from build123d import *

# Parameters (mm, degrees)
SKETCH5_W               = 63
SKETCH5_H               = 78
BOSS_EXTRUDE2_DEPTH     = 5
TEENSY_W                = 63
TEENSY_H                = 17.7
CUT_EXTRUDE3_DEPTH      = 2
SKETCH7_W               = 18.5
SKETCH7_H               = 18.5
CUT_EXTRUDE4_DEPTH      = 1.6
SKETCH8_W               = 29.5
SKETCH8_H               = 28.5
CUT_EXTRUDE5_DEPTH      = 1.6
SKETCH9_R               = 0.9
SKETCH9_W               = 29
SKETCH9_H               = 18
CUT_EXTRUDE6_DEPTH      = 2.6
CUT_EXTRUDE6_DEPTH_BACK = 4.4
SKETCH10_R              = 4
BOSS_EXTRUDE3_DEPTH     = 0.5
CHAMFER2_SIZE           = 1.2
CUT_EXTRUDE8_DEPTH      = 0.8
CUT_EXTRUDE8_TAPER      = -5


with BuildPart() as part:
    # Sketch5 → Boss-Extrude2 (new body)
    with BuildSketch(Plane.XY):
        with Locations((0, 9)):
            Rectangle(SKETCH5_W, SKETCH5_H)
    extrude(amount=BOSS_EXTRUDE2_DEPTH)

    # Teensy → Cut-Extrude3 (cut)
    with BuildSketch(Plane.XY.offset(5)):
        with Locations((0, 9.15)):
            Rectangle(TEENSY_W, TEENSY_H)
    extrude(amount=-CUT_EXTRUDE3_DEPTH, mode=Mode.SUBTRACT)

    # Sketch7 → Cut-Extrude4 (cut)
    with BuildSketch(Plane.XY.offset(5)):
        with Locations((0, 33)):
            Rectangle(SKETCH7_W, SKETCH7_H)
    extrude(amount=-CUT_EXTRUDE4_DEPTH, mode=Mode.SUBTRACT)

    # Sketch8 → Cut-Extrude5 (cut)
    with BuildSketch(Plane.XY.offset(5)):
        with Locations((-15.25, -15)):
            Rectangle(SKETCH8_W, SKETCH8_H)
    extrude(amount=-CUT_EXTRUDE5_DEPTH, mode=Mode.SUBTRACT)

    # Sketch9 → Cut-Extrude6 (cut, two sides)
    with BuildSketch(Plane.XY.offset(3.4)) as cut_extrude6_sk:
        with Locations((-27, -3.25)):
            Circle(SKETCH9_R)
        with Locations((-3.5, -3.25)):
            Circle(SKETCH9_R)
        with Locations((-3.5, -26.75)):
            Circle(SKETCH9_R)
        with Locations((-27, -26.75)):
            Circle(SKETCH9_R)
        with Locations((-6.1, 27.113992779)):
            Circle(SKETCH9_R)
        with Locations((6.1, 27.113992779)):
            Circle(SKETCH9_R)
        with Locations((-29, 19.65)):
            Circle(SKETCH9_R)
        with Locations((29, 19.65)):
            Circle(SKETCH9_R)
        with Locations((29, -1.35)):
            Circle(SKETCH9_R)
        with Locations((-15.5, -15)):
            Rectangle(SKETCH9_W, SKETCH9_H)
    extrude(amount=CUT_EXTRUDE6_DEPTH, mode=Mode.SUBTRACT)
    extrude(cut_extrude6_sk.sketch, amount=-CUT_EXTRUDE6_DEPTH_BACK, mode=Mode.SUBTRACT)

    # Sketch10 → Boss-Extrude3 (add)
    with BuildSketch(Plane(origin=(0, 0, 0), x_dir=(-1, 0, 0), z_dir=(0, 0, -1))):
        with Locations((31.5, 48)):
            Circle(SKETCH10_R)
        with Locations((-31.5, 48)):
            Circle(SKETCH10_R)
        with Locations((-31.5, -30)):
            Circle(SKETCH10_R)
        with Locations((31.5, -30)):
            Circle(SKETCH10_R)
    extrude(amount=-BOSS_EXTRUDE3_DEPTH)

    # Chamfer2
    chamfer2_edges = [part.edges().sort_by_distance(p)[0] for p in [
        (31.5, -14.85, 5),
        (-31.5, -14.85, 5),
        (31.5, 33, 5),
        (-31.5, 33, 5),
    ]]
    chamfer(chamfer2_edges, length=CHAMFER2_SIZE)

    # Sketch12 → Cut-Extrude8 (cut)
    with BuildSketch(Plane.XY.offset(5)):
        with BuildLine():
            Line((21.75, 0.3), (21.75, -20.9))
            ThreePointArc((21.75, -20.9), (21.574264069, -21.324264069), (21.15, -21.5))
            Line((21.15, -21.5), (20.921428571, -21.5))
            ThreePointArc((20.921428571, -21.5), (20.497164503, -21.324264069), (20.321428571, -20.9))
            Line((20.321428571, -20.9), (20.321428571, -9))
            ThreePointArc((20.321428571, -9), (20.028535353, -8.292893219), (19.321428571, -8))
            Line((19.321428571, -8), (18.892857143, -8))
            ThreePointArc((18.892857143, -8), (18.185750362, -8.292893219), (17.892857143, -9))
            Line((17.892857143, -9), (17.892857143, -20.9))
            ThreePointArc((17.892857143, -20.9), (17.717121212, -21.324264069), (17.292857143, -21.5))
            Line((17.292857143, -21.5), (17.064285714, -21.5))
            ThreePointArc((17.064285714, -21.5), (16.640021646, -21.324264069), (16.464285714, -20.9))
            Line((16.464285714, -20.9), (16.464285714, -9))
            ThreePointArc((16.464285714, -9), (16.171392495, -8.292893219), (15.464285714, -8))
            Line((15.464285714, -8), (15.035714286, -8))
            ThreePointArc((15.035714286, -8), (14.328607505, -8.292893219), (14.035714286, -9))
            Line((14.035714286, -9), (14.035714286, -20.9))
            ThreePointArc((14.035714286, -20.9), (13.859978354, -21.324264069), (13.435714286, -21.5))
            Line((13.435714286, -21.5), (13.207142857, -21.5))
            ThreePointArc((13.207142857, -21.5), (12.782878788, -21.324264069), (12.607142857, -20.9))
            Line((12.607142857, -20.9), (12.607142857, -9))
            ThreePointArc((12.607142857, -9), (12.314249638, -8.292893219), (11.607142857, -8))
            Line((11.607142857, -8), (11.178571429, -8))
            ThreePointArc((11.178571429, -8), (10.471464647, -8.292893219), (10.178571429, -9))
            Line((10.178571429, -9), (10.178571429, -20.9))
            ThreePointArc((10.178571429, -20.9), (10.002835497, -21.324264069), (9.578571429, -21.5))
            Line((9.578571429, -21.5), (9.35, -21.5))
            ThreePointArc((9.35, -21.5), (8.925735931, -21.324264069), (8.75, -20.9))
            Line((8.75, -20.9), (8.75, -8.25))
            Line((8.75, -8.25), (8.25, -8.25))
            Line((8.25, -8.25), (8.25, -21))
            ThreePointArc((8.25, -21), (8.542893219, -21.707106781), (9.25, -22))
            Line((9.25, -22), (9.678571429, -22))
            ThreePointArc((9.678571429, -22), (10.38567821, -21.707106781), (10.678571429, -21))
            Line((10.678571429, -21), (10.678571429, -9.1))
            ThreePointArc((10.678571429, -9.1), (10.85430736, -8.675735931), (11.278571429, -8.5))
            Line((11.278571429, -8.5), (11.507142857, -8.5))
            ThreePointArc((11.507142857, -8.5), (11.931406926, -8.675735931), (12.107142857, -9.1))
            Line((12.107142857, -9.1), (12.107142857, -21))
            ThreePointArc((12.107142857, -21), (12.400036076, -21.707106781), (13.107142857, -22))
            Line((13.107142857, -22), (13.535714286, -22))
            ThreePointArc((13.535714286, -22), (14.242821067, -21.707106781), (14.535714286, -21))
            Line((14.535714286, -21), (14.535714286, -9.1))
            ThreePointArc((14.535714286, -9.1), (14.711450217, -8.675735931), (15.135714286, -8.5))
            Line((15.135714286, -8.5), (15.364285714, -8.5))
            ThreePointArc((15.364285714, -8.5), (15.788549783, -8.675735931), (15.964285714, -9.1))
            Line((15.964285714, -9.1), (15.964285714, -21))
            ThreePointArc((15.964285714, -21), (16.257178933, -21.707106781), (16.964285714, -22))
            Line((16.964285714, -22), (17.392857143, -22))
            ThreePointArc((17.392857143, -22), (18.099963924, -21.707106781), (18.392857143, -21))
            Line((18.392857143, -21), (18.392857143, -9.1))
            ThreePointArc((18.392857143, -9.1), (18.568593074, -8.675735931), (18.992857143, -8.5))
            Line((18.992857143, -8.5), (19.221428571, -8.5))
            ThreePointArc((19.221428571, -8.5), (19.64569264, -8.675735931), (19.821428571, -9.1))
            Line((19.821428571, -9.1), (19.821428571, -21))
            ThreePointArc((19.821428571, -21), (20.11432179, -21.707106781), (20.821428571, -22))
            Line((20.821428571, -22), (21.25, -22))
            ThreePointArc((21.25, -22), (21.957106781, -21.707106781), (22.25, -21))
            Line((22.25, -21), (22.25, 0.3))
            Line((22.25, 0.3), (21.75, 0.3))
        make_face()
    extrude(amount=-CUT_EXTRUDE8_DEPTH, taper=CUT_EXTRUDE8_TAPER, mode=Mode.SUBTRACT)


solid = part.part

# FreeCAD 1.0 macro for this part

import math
import FreeCAD as App
import Part
import Sketcher
Q = App.Units.Quantity


def edges_at(feature, points):
    """Names of the edges that pass closest to the given points."""
    edges = feature.Shape.Edges
    near = lambda p: min(range(len(edges)), key=lambda i: edges[i].distToShape(Part.Vertex(*p))[0])
    return sorted({f"Edge{near(p) + 1}" for p in points})


def add_polygon(sketch, points):
    """Adds a closed chain of lines whose ends are joined by coincident constraints."""
    first, n = sketch.GeometryCount, len(points)
    for a, b in zip(points, points[1:] + points[:1]):
        sketch.addGeometry(Part.LineSegment(App.Vector(*a, 0), App.Vector(*b, 0)), False)
    for i in range(n):
        sketch.addConstraint(Sketcher.Constraint("Coincident", first + i, 2, first + (i + 1) % n, 1))

doc = App.newDocument("Part")
body = doc.addObject("PartDesign::Body", "Body")

# Sketch on XY plane
sketch1 = doc.addObject("Sketcher::SketchObject", "Sketch")
body.addObject(sketch1)
sketch1.AttachmentSupport = (doc.XY_Plane, [""])
sketch1.MapMode = "FlatFace"
add_polygon(sketch1, [(-32, 48), (-32, -30), (32, -30), (32, 48)])  # lines 0-3
sketch1.addConstraint([
    Sketcher.Constraint("Vertical", 0),
    Sketcher.Constraint("Horizontal", 1),
    Sketcher.Constraint("Vertical", 2),
    Sketcher.Constraint("Horizontal", 3),
    Sketcher.Constraint("DistanceX", 1, 1, 1, 2, Q("63 mm")),
    Sketcher.Constraint("DistanceY", 0, 2, 0, 1, Q("78 mm")),
    Sketcher.Constraint("DistanceY", 0, 2, -1, 1, Q("30 mm")),
    Sketcher.Constraint("DistanceX", 0, 2, -1, 1, Q("31.5 mm")),
])
pad1 = doc.addObject("PartDesign::Pad", "Pad")
body.addObject(pad1)
pad1.Profile = sketch1
pad1.Length = 5

# Sketch on XY plane
sketch2 = doc.addObject("Sketcher::SketchObject", "Sketch001")
body.addObject(sketch2)
sketch2.AttachmentSupport = (doc.XY_Plane, [""])
sketch2.MapMode = "FlatFace"
sketch2.AttachmentOffset = App.Placement(App.Vector(0, 0, 5), App.Rotation())
add_polygon(sketch2, [(-32, 18), (-32, 0), (32, 0), (32, 18)])  # lines 0-3
sketch2.addConstraint([
    Sketcher.Constraint("Vertical", 0),
    Sketcher.Constraint("Horizontal", 1),
    Sketcher.Constraint("Vertical", 2),
    Sketcher.Constraint("Horizontal", 3),
    Sketcher.Constraint("DistanceX", 1, 1, 1, 2, Q("63 mm")),
    Sketcher.Constraint("DistanceY", 0, 2, 0, 1, Q("17.7 mm")),
    Sketcher.Constraint("DistanceY", -1, 1, 2, 2, Q("18 mm")),
    Sketcher.Constraint("DistanceX", 0, 2, -1, 1, Q("31.5 mm")),
])
pocket1 = doc.addObject("PartDesign::Pocket", "Pocket")
body.addObject(pocket1)
pocket1.Profile = sketch2
pocket1.Length = 2

# Sketch on XY plane
sketch3 = doc.addObject("Sketcher::SketchObject", "Sketch002")
body.addObject(sketch3)
sketch3.AttachmentSupport = (doc.XY_Plane, [""])
sketch3.MapMode = "FlatFace"
sketch3.AttachmentOffset = App.Placement(App.Vector(0, 0, 5), App.Rotation())
add_polygon(sketch3, [(-9, 42), (-9, 24), (9, 24), (9, 42)])  # lines 0-3
sketch3.addConstraint([
    Sketcher.Constraint("Vertical", 0),
    Sketcher.Constraint("Horizontal", 1),
    Sketcher.Constraint("Vertical", 2),
    Sketcher.Constraint("Horizontal", 3),
    Sketcher.Constraint("Equal", 3, 0),
    Sketcher.Constraint("DistanceX", 1, 1, 1, 2, Q("18.5 mm")),
    Sketcher.Constraint("DistanceX", 0, 2, -1, 1, Q("9.25 mm")),
    Sketcher.Constraint("DistanceY", -1, 1, 0, 2, Q("23.75 mm")),
])
pocket2 = doc.addObject("PartDesign::Pocket", "Pocket001")
body.addObject(pocket2)
pocket2.Profile = sketch3
pocket2.Length = 1.6

# Sketch on XY plane
sketch4 = doc.addObject("Sketcher::SketchObject", "Sketch003")
body.addObject(sketch4)
sketch4.AttachmentSupport = (doc.XY_Plane, [""])
sketch4.MapMode = "FlatFace"
sketch4.AttachmentOffset = App.Placement(App.Vector(0, 0, 5), App.Rotation())
add_polygon(sketch4, [(-30, -1), (-30, -29), (0, -29), (0, -1)])  # lines 0-3
sketch4.addConstraint([
    Sketcher.Constraint("Vertical", 0),
    Sketcher.Constraint("Horizontal", 1),
    Sketcher.Constraint("Vertical", 2),
    Sketcher.Constraint("Horizontal", 3),
    Sketcher.Constraint("DistanceX", 1, 1, 1, 2, Q("29.5 mm")),
    Sketcher.Constraint("DistanceY", 0, 2, 0, 1, Q("28.5 mm")),
    Sketcher.Constraint("DistanceX", 0, 2, -1, 1, Q("30 mm")),
    Sketcher.Constraint("DistanceY", 0, 2, -1, 1, Q("29.25 mm")),
])
pocket3 = doc.addObject("PartDesign::Pocket", "Pocket002")
body.addObject(pocket3)
pocket3.Profile = sketch4
pocket3.Length = 1.6

# Sketch on XY plane
sketch5 = doc.addObject("Sketcher::SketchObject", "Sketch004")
body.addObject(sketch5)
sketch5.AttachmentSupport = (doc.XY_Plane, [""])
sketch5.MapMode = "FlatFace"
sketch5.AttachmentOffset = App.Placement(App.Vector(0, 0, 3.4), App.Rotation())
sketch5.addGeometry(Part.Circle(App.Vector(-27, -3.2, 0), App.Vector(0, 0, 1), 0.9), False)  # 0
sketch5.addGeometry(Part.Circle(App.Vector(-3.5, -3.2, 0), App.Vector(0, 0, 1), 0.9), False)  # 1
sketch5.addGeometry(Part.Circle(App.Vector(-3.5, -26.8, 0), App.Vector(0, 0, 1), 0.9), False)  # 2
sketch5.addGeometry(Part.Circle(App.Vector(-27, -26.8, 0), App.Vector(0, 0, 1), 0.9), False)  # 3
sketch5.addGeometry(Part.Circle(App.Vector(-6.1, 27.1, 0), App.Vector(0, 0, 1), 0.9), False)  # 4
sketch5.addGeometry(Part.Circle(App.Vector(6.1, 27.1, 0), App.Vector(0, 0, 1), 0.9), False)  # 5
sketch5.addGeometry(Part.Circle(App.Vector(-29, 19.6, 0), App.Vector(0, 0, 1), 0.9), False)  # 6
sketch5.addGeometry(Part.Circle(App.Vector(29, 19.6, 0), App.Vector(0, 0, 1), 0.9), False)  # 7
sketch5.addGeometry(Part.Circle(App.Vector(29, -1.4, 0), App.Vector(0, 0, 1), 0.9), False)  # 8
add_polygon(sketch5, [(-30, -6), (-30, -24), (-1, -24), (-1, -6)])  # lines 9-12
sketch5.addConstraint([
    Sketcher.Constraint("Vertical", 9),
    Sketcher.Constraint("Horizontal", 10),
    Sketcher.Constraint("Vertical", 11),
    Sketcher.Constraint("Horizontal", 12),
    Sketcher.Constraint("Equal", 0, 1),
    Sketcher.Constraint("Equal", 1, 2),
    Sketcher.Constraint("Equal", 2, 3),
    Sketcher.Constraint("Equal", 3, 4),
    Sketcher.Constraint("Equal", 4, 5),
    Sketcher.Constraint("Equal", 5, 6),
    Sketcher.Constraint("Equal", 6, 7),
    Sketcher.Constraint("Equal", 7, 8),
    Sketcher.Constraint("Symmetric", 4, 3, 5, 3, -2),
    Sketcher.Constraint("Symmetric", 6, 3, 7, 3, -2),
    Sketcher.Constraint("Horizontal", 0, 3, 1, 3),
    Sketcher.Constraint("Horizontal", 2, 3, 3, 3),
    Sketcher.Constraint("Vertical", 1, 3, 2, 3),
    Sketcher.Constraint("Vertical", 0, 3, 3, 3),
    Sketcher.Constraint("Vertical", 7, 3, 8, 3),
    Sketcher.Constraint("Diameter", 0, Q("1.8 mm")),
    Sketcher.Constraint("DistanceX", 10, 1, 10, 2, Q("29 mm")),
    Sketcher.Constraint("DistanceY", 9, 2, 9, 1, Q("18 mm")),
    Sketcher.Constraint("DistanceX", 0, 3, -1, 1, Q("27 mm")),
    Sketcher.Constraint("DistanceX", 6, 3, -1, 1, Q("29 mm")),
    Sketcher.Constraint("DistanceX", 9, 2, -1, 1, Q("30 mm")),
    Sketcher.Constraint("DistanceY", 9, 2, -1, 1, Q("24 mm")),
    Sketcher.Constraint("DistanceY", 8, 3, 7, 3, Q("21 mm")),
    Sketcher.Constraint("DistanceX", 1, 3, -1, 1, Q("3.5 mm")),
    Sketcher.Constraint("DistanceX", 4, 3, -1, 1, Q("6.1 mm")),
    Sketcher.Constraint("DistanceY", 2, 3, 1, 3, Q("23.5 mm")),
    Sketcher.Constraint("DistanceY", 0, 3, 6, 3, Q("22.9 mm")),
    Sketcher.Constraint("DistanceY", 0, 3, -1, 1, Q("3.25 mm")),
    Sketcher.Constraint("DistanceY", -1, 1, 4, 3, Q("27.113993 mm")),
])
pocket4 = doc.addObject("PartDesign::Pocket", "Pocket003")
body.addObject(pocket4)
pocket4.Profile = sketch5
pocket4.Type = "ThroughAll"
pocket4.Midplane = True

# Sketch on XY plane
sketch6 = doc.addObject("Sketcher::SketchObject", "Sketch005")
body.addObject(sketch6)
sketch6.AttachmentSupport = (doc.XY_Plane, [""])
sketch6.MapMode = "FlatFace"
sketch6.addGeometry([
    Part.Circle(App.Vector(-31.5, 48, 0), App.Vector(0, 0, 1), 4),
    Part.Circle(App.Vector(31.5, 48, 0), App.Vector(0, 0, 1), 4),
    Part.Circle(App.Vector(31.5, -30, 0), App.Vector(0, 0, 1), 4),
    Part.Circle(App.Vector(-31.5, -30, 0), App.Vector(0, 0, 1), 4),
], False)
sketch6.addConstraint([
    Sketcher.Constraint("Equal", 0, 1),
    Sketcher.Constraint("Equal", 1, 2),
    Sketcher.Constraint("Equal", 2, 3),
    Sketcher.Constraint("Symmetric", 0, 3, 1, 3, -2),
    Sketcher.Constraint("Symmetric", 2, 3, 3, 3, -2),
    Sketcher.Constraint("Vertical", 1, 3, 2, 3),
    Sketcher.Constraint("Diameter", 0, Q("8 mm")),
    Sketcher.Constraint("DistanceY", -1, 1, 0, 3, Q("48 mm")),
    Sketcher.Constraint("DistanceY", 2, 3, -1, 1, Q("30 mm")),
    Sketcher.Constraint("DistanceX", 0, 3, 1, 3, Q("63 mm")),
])
pad2 = doc.addObject("PartDesign::Pad", "Pad001")
body.addObject(pad2)
pad2.Profile = sketch6
pad2.Length = 0.5
doc.recompute()

chamfer = doc.addObject("PartDesign::Chamfer", "Chamfer")
body.addObject(chamfer)
chamfer.Base = (pad2, edges_at(pad2, [
    (31.5, -14.85, 5),
    (-31.5, -14.85, 5),
    (31.5, 33, 5),
    (-31.5, 33, 5),
]))
chamfer.Size = 1.2

# Sketch on XY plane
sketch7 = doc.addObject("Sketcher::SketchObject", "Sketch006")
body.addObject(sketch7)
sketch7.AttachmentSupport = (doc.XY_Plane, [""])
sketch7.MapMode = "FlatFace"
sketch7.AttachmentOffset = App.Placement(App.Vector(0, 0, 5), App.Rotation())
sketch7.addGeometry([
    Part.LineSegment(App.Vector(21.75, 0.3, 0), App.Vector(21.75, -20.9, 0)),  # 0
    Part.ArcOfCircle(Part.Circle(App.Vector(21.15, -20.9, 0), App.Vector(0, 0, 1), 0.6), math.radians(-90), math.radians(0)),  # 1
    Part.LineSegment(App.Vector(21.15, -21.5, 0), App.Vector(20.92, -21.5, 0)),  # 2
    Part.ArcOfCircle(Part.Circle(App.Vector(20.92, -20.9, 0), App.Vector(0, 0, 1), 0.6), math.radians(-180), math.radians(-90)),  # 3
    Part.LineSegment(App.Vector(20.32, -20.9, 0), App.Vector(20.32, -9, 0)),  # 4
    Part.ArcOfCircle(Part.Circle(App.Vector(19.32, -9, 0), App.Vector(0, 0, 1), 1), math.radians(0), math.radians(90)),  # 5
    Part.LineSegment(App.Vector(19.32, -8, 0), App.Vector(18.89, -8, 0)),  # 6
    Part.ArcOfCircle(Part.Circle(App.Vector(18.89, -9, 0), App.Vector(0, 0, 1), 1), math.radians(90), math.radians(180)),  # 7
    Part.LineSegment(App.Vector(17.89, -9, 0), App.Vector(17.89, -20.9, 0)),  # 8
    Part.ArcOfCircle(Part.Circle(App.Vector(17.29, -20.9, 0), App.Vector(0, 0, 1), 0.6), math.radians(-90), math.radians(0)),  # 9
    Part.LineSegment(App.Vector(17.29, -21.5, 0), App.Vector(17.06, -21.5, 0)),  # 10
    Part.ArcOfCircle(Part.Circle(App.Vector(17.06, -20.9, 0), App.Vector(0, 0, 1), 0.6), math.radians(-180), math.radians(-90)),  # 11
    Part.LineSegment(App.Vector(16.46, -20.9, 0), App.Vector(16.46, -9, 0)),  # 12
    Part.ArcOfCircle(Part.Circle(App.Vector(15.46, -9, 0), App.Vector(0, 0, 1), 1), math.radians(0), math.radians(90)),  # 13
    Part.LineSegment(App.Vector(15.46, -8, 0), App.Vector(15.04, -8, 0)),  # 14
    Part.ArcOfCircle(Part.Circle(App.Vector(15.04, -9, 0), App.Vector(0, 0, 1), 1), math.radians(90), math.radians(180)),  # 15
    Part.LineSegment(App.Vector(14.04, -9, 0), App.Vector(14.04, -20.9, 0)),  # 16
    Part.ArcOfCircle(Part.Circle(App.Vector(13.44, -20.9, 0), App.Vector(0, 0, 1), 0.6), math.radians(-90), math.radians(0)),  # 17
    Part.LineSegment(App.Vector(13.44, -21.5, 0), App.Vector(13.21, -21.5, 0)),  # 18
    Part.ArcOfCircle(Part.Circle(App.Vector(13.21, -20.9, 0), App.Vector(0, 0, 1), 0.6), math.radians(180), math.radians(270)),  # 19
    Part.LineSegment(App.Vector(12.61, -20.9, 0), App.Vector(12.61, -9, 0)),  # 20
    Part.ArcOfCircle(Part.Circle(App.Vector(11.61, -9, 0), App.Vector(0, 0, 1), 1), math.radians(0), math.radians(90)),  # 21
    Part.LineSegment(App.Vector(11.61, -8, 0), App.Vector(11.18, -8, 0)),  # 22
    Part.ArcOfCircle(Part.Circle(App.Vector(11.18, -9, 0), App.Vector(0, 0, 1), 1), math.radians(90), math.radians(180)),  # 23
    Part.LineSegment(App.Vector(10.18, -9, 0), App.Vector(10.18, -20.9, 0)),  # 24
    Part.ArcOfCircle(Part.Circle(App.Vector(9.58, -20.9, 0), App.Vector(0, 0, 1), 0.6), math.radians(-90), math.radians(0)),  # 25
    Part.LineSegment(App.Vector(9.58, -21.5, 0), App.Vector(9.35, -21.5, 0)),  # 26
    Part.ArcOfCircle(Part.Circle(App.Vector(9.35, -20.9, 0), App.Vector(0, 0, 1), 0.6), math.radians(180), math.radians(270)),  # 27
    Part.LineSegment(App.Vector(8.75, -20.9, 0), App.Vector(8.75, -8.25, 0)),  # 28
    Part.LineSegment(App.Vector(8.75, -8.25, 0), App.Vector(8.25, -8.25, 0)),  # 29
    Part.LineSegment(App.Vector(8.25, -8.25, 0), App.Vector(8.25, -21, 0)),  # 30
    Part.ArcOfCircle(Part.Circle(App.Vector(9.25, -21, 0), App.Vector(0, 0, 1), 1), math.radians(-180), math.radians(-90)),  # 31
    Part.LineSegment(App.Vector(9.25, -22, 0), App.Vector(9.68, -22, 0)),  # 32
    Part.ArcOfCircle(Part.Circle(App.Vector(9.68, -21, 0), App.Vector(0, 0, 1), 1), math.radians(-90), math.radians(0)),  # 33
    Part.LineSegment(App.Vector(10.68, -21, 0), App.Vector(10.68, -9.1, 0)),  # 34
    Part.ArcOfCircle(Part.Circle(App.Vector(11.28, -9.1, 0), App.Vector(0, 0, 1), 0.6), math.radians(90), math.radians(180)),  # 35
    Part.LineSegment(App.Vector(11.28, -8.5, 0), App.Vector(11.51, -8.5, 0)),  # 36
    Part.ArcOfCircle(Part.Circle(App.Vector(11.51, -9.1, 0), App.Vector(0, 0, 1), 0.6), math.radians(0), math.radians(90)),  # 37
    Part.LineSegment(App.Vector(12.11, -9.1, 0), App.Vector(12.11, -21, 0)),  # 38
    Part.ArcOfCircle(Part.Circle(App.Vector(13.11, -21, 0), App.Vector(0, 0, 1), 1), math.radians(-180), math.radians(-90)),  # 39
    Part.LineSegment(App.Vector(13.11, -22, 0), App.Vector(13.54, -22, 0)),  # 40
    Part.ArcOfCircle(Part.Circle(App.Vector(13.54, -21, 0), App.Vector(0, 0, 1), 1), math.radians(-90), math.radians(0)),  # 41
    Part.LineSegment(App.Vector(14.54, -21, 0), App.Vector(14.54, -9.1, 0)),  # 42
    Part.ArcOfCircle(Part.Circle(App.Vector(15.14, -9.1, 0), App.Vector(0, 0, 1), 0.6), math.radians(90), math.radians(180)),  # 43
    Part.LineSegment(App.Vector(15.14, -8.5, 0), App.Vector(15.36, -8.5, 0)),  # 44
    Part.ArcOfCircle(Part.Circle(App.Vector(15.36, -9.1, 0), App.Vector(0, 0, 1), 0.6), math.radians(0), math.radians(90)),  # 45
    Part.LineSegment(App.Vector(15.96, -9.1, 0), App.Vector(15.96, -21, 0)),  # 46
    Part.ArcOfCircle(Part.Circle(App.Vector(16.96, -21, 0), App.Vector(0, 0, 1), 1), math.radians(-180), math.radians(-90)),  # 47
    Part.LineSegment(App.Vector(16.96, -22, 0), App.Vector(17.39, -22, 0)),  # 48
    Part.ArcOfCircle(Part.Circle(App.Vector(17.39, -21, 0), App.Vector(0, 0, 1), 1), math.radians(-90), math.radians(0)),  # 49
    Part.LineSegment(App.Vector(18.39, -21, 0), App.Vector(18.39, -9.1, 0)),  # 50
    Part.ArcOfCircle(Part.Circle(App.Vector(18.99, -9.1, 0), App.Vector(0, 0, 1), 0.6), math.radians(90), math.radians(180)),  # 51
    Part.LineSegment(App.Vector(18.99, -8.5, 0), App.Vector(19.22, -8.5, 0)),  # 52
    Part.ArcOfCircle(Part.Circle(App.Vector(19.22, -9.1, 0), App.Vector(0, 0, 1), 0.6), math.radians(0), math.radians(90)),  # 53
    Part.LineSegment(App.Vector(19.82, -9.1, 0), App.Vector(19.82, -21, 0)),  # 54
    Part.ArcOfCircle(Part.Circle(App.Vector(20.82, -21, 0), App.Vector(0, 0, 1), 1), math.radians(-180), math.radians(-90)),  # 55
    Part.LineSegment(App.Vector(20.82, -22, 0), App.Vector(21.25, -22, 0)),  # 56
    Part.ArcOfCircle(Part.Circle(App.Vector(21.25, -21, 0), App.Vector(0, 0, 1), 1), math.radians(-90), math.radians(0)),  # 57
    Part.LineSegment(App.Vector(22.25, -21, 0), App.Vector(22.25, 0.3, 0)),  # 58
    Part.LineSegment(App.Vector(22.25, 0.3, 0), App.Vector(21.75, 0.3, 0)),  # 59
], False)
sketch7.addConstraint([
    Sketcher.Constraint("Tangent", 0, 2, 1, 2),
    Sketcher.Constraint("Tangent", 1, 1, 2, 1),
    Sketcher.Constraint("Tangent", 2, 2, 3, 2),
    Sketcher.Constraint("Tangent", 3, 1, 4, 1),
    Sketcher.Constraint("Tangent", 4, 2, 5, 1),
    Sketcher.Constraint("Tangent", 5, 2, 6, 1),
    Sketcher.Constraint("Tangent", 6, 2, 7, 1),
    Sketcher.Constraint("Tangent", 7, 2, 8, 1),
    Sketcher.Constraint("Tangent", 8, 2, 9, 2),
    Sketcher.Constraint("Tangent", 9, 1, 10, 1),
    Sketcher.Constraint("Tangent", 10, 2, 11, 2),
    Sketcher.Constraint("Tangent", 11, 1, 12, 1),
    Sketcher.Constraint("Tangent", 12, 2, 13, 1),
    Sketcher.Constraint("Tangent", 13, 2, 14, 1),
    Sketcher.Constraint("Tangent", 14, 2, 15, 1),
    Sketcher.Constraint("Tangent", 15, 2, 16, 1),
    Sketcher.Constraint("Tangent", 16, 2, 17, 2),
    Sketcher.Constraint("Tangent", 17, 1, 18, 1),
    Sketcher.Constraint("Tangent", 18, 2, 19, 2),
    Sketcher.Constraint("Tangent", 19, 1, 20, 1),
    Sketcher.Constraint("Tangent", 20, 2, 21, 1),
    Sketcher.Constraint("Tangent", 21, 2, 22, 1),
    Sketcher.Constraint("Tangent", 22, 2, 23, 1),
    Sketcher.Constraint("Tangent", 23, 2, 24, 1),
    Sketcher.Constraint("Tangent", 24, 2, 25, 2),
    Sketcher.Constraint("Tangent", 25, 1, 26, 1),
    Sketcher.Constraint("Tangent", 26, 2, 27, 2),
    Sketcher.Constraint("Tangent", 27, 1, 28, 1),
    Sketcher.Constraint("Coincident", 28, 2, 29, 1),
    Sketcher.Constraint("Coincident", 29, 2, 30, 1),
    Sketcher.Constraint("Tangent", 30, 2, 31, 1),
    Sketcher.Constraint("Tangent", 31, 2, 32, 1),
    Sketcher.Constraint("Tangent", 32, 2, 33, 1),
    Sketcher.Constraint("Tangent", 33, 2, 34, 1),
    Sketcher.Constraint("Tangent", 34, 2, 35, 2),
    Sketcher.Constraint("Tangent", 35, 1, 36, 1),
    Sketcher.Constraint("Tangent", 36, 2, 37, 2),
    Sketcher.Constraint("Tangent", 37, 1, 38, 1),
    Sketcher.Constraint("Tangent", 38, 2, 39, 1),
    Sketcher.Constraint("Tangent", 39, 2, 40, 1),
    Sketcher.Constraint("Tangent", 40, 2, 41, 1),
    Sketcher.Constraint("Tangent", 41, 2, 42, 1),
    Sketcher.Constraint("Tangent", 42, 2, 43, 2),
    Sketcher.Constraint("Tangent", 43, 1, 44, 1),
    Sketcher.Constraint("Tangent", 44, 2, 45, 2),
    Sketcher.Constraint("Tangent", 45, 1, 46, 1),
    Sketcher.Constraint("Tangent", 46, 2, 47, 1),
    Sketcher.Constraint("Tangent", 47, 2, 48, 1),
    Sketcher.Constraint("Tangent", 48, 2, 49, 1),
    Sketcher.Constraint("Tangent", 49, 2, 50, 1),
    Sketcher.Constraint("Tangent", 50, 2, 51, 2),
    Sketcher.Constraint("Tangent", 51, 1, 52, 1),
    Sketcher.Constraint("Tangent", 52, 2, 53, 2),
    Sketcher.Constraint("Tangent", 53, 1, 54, 1),
    Sketcher.Constraint("Tangent", 54, 2, 55, 1),
    Sketcher.Constraint("Tangent", 55, 2, 56, 1),
    Sketcher.Constraint("Tangent", 56, 2, 57, 1),
    Sketcher.Constraint("Tangent", 57, 2, 58, 1),
    Sketcher.Constraint("Coincident", 58, 2, 59, 1),
    Sketcher.Constraint("Coincident", 59, 2, 0, 1),
    Sketcher.Constraint("Vertical", 0),
    Sketcher.Constraint("Horizontal", 2),
    Sketcher.Constraint("Vertical", 4),
    Sketcher.Constraint("Horizontal", 6),
    Sketcher.Constraint("Vertical", 8),
    Sketcher.Constraint("Horizontal", 10),
    Sketcher.Constraint("Vertical", 12),
    Sketcher.Constraint("Horizontal", 14),
    Sketcher.Constraint("Vertical", 16),
    Sketcher.Constraint("Horizontal", 18),
    Sketcher.Constraint("Vertical", 20),
    Sketcher.Constraint("Horizontal", 22),
    Sketcher.Constraint("Vertical", 24),
    Sketcher.Constraint("Horizontal", 26),
    Sketcher.Constraint("Vertical", 28),
    Sketcher.Constraint("Horizontal", 29),
    Sketcher.Constraint("Vertical", 30),
    Sketcher.Constraint("Horizontal", 32),
    Sketcher.Constraint("Vertical", 34),
    Sketcher.Constraint("Horizontal", 36),
    Sketcher.Constraint("Vertical", 38),
    Sketcher.Constraint("Horizontal", 40),
    Sketcher.Constraint("Vertical", 42),
    Sketcher.Constraint("Horizontal", 44),
    Sketcher.Constraint("Vertical", 46),
    Sketcher.Constraint("Horizontal", 48),
    Sketcher.Constraint("Vertical", 50),
    Sketcher.Constraint("Horizontal", 52),
    Sketcher.Constraint("Vertical", 54),
    Sketcher.Constraint("Horizontal", 56),
    Sketcher.Constraint("Vertical", 58),
    Sketcher.Constraint("Horizontal", 59),
    Sketcher.Constraint("Equal", 1, 3),
    Sketcher.Constraint("Equal", 5, 7),
    Sketcher.Constraint("Equal", 3, 9),
    Sketcher.Constraint("Equal", 9, 11),
    Sketcher.Constraint("Equal", 7, 13),
    Sketcher.Constraint("Equal", 13, 15),
    Sketcher.Constraint("Equal", 11, 17),
    Sketcher.Constraint("Equal", 17, 19),
    Sketcher.Constraint("Equal", 15, 21),
    Sketcher.Constraint("Equal", 21, 23),
    Sketcher.Constraint("Equal", 19, 25),
    Sketcher.Constraint("Equal", 25, 27),
    Sketcher.Constraint("Equal", 23, 31),
    Sketcher.Constraint("Equal", 31, 33),
    Sketcher.Constraint("Equal", 27, 35),
    Sketcher.Constraint("Equal", 35, 37),
    Sketcher.Constraint("Equal", 33, 39),
    Sketcher.Constraint("Equal", 39, 41),
    Sketcher.Constraint("Equal", 37, 43),
    Sketcher.Constraint("Equal", 43, 45),
    Sketcher.Constraint("Equal", 41, 47),
    Sketcher.Constraint("Equal", 47, 49),
    Sketcher.Constraint("Equal", 45, 51),
    Sketcher.Constraint("Equal", 51, 53),
    Sketcher.Constraint("Equal", 49, 55),
    Sketcher.Constraint("Equal", 55, 57),
    Sketcher.Constraint("Horizontal", 3, 3, 9, 3),
    Sketcher.Constraint("Horizontal", 7, 3, 13, 3),
    Sketcher.Constraint("Horizontal", 11, 3, 17, 3),
    Sketcher.Constraint("Horizontal", 15, 3, 21, 3),
    Sketcher.Constraint("Horizontal", 19, 3, 25, 3),
    Sketcher.Constraint("Horizontal", 33, 3, 39, 3),
    Sketcher.Constraint("Horizontal", 37, 3, 43, 3),
    Sketcher.Constraint("Horizontal", 41, 3, 47, 3),
    Sketcher.Constraint("Horizontal", 45, 3, 51, 3),
    Sketcher.Constraint("Horizontal", 49, 3, 55, 3),
    Sketcher.Constraint("Equal", 2, 10),
    Sketcher.Constraint("Equal", 6, 14),
    Sketcher.Constraint("Equal", 10, 18),
    Sketcher.Constraint("Equal", 14, 22),
    Sketcher.Constraint("Equal", 18, 26),
    Sketcher.Constraint("Equal", 22, 32),
    Sketcher.Constraint("Equal", 26, 36),
    Sketcher.Constraint("Equal", 32, 40),
    Sketcher.Constraint("Equal", 36, 44),
    Sketcher.Constraint("Equal", 40, 48),
    Sketcher.Constraint("Equal", 44, 52),
    Sketcher.Constraint("Equal", 48, 56),
    Sketcher.Constraint("Equal", 29, 59),
    Sketcher.Constraint("Equal", 24, 34),
    Sketcher.Constraint("Radius", 5, Q("1 mm")),
    Sketcher.Constraint("Radius", 1, Q("0.6 mm")),
    Sketcher.Constraint("DistanceX", 29, 2, 29, 1, Q("0.5 mm")),
    Sketcher.Constraint("DistanceY", 0, 2, 0, 1, Q("21.2 mm")),
    Sketcher.Constraint("DistanceY", 4, 1, 4, 2, Q("11.9 mm")),
    Sketcher.Constraint("DistanceY", 58, 1, 58, 2, Q("21.3 mm")),
    Sketcher.Constraint("DistanceY", 5, 3, -1, 1, Q("9 mm")),
    Sketcher.Constraint("DistanceY", 28, 1, 28, 2, Q("12.65 mm")),
    Sketcher.Constraint("DistanceX", -1, 1, 1, 3, Q("21.15 mm")),
    Sketcher.Constraint("DistanceX", -1, 1, 27, 3, Q("9.35 mm")),
])
pocket5 = doc.addObject("PartDesign::Pocket", "Pocket004")
body.addObject(pocket5)
pocket5.Profile = sketch7
pocket5.Length = 0.8
pocket5.TaperAngle = 5

doc.recompute()
